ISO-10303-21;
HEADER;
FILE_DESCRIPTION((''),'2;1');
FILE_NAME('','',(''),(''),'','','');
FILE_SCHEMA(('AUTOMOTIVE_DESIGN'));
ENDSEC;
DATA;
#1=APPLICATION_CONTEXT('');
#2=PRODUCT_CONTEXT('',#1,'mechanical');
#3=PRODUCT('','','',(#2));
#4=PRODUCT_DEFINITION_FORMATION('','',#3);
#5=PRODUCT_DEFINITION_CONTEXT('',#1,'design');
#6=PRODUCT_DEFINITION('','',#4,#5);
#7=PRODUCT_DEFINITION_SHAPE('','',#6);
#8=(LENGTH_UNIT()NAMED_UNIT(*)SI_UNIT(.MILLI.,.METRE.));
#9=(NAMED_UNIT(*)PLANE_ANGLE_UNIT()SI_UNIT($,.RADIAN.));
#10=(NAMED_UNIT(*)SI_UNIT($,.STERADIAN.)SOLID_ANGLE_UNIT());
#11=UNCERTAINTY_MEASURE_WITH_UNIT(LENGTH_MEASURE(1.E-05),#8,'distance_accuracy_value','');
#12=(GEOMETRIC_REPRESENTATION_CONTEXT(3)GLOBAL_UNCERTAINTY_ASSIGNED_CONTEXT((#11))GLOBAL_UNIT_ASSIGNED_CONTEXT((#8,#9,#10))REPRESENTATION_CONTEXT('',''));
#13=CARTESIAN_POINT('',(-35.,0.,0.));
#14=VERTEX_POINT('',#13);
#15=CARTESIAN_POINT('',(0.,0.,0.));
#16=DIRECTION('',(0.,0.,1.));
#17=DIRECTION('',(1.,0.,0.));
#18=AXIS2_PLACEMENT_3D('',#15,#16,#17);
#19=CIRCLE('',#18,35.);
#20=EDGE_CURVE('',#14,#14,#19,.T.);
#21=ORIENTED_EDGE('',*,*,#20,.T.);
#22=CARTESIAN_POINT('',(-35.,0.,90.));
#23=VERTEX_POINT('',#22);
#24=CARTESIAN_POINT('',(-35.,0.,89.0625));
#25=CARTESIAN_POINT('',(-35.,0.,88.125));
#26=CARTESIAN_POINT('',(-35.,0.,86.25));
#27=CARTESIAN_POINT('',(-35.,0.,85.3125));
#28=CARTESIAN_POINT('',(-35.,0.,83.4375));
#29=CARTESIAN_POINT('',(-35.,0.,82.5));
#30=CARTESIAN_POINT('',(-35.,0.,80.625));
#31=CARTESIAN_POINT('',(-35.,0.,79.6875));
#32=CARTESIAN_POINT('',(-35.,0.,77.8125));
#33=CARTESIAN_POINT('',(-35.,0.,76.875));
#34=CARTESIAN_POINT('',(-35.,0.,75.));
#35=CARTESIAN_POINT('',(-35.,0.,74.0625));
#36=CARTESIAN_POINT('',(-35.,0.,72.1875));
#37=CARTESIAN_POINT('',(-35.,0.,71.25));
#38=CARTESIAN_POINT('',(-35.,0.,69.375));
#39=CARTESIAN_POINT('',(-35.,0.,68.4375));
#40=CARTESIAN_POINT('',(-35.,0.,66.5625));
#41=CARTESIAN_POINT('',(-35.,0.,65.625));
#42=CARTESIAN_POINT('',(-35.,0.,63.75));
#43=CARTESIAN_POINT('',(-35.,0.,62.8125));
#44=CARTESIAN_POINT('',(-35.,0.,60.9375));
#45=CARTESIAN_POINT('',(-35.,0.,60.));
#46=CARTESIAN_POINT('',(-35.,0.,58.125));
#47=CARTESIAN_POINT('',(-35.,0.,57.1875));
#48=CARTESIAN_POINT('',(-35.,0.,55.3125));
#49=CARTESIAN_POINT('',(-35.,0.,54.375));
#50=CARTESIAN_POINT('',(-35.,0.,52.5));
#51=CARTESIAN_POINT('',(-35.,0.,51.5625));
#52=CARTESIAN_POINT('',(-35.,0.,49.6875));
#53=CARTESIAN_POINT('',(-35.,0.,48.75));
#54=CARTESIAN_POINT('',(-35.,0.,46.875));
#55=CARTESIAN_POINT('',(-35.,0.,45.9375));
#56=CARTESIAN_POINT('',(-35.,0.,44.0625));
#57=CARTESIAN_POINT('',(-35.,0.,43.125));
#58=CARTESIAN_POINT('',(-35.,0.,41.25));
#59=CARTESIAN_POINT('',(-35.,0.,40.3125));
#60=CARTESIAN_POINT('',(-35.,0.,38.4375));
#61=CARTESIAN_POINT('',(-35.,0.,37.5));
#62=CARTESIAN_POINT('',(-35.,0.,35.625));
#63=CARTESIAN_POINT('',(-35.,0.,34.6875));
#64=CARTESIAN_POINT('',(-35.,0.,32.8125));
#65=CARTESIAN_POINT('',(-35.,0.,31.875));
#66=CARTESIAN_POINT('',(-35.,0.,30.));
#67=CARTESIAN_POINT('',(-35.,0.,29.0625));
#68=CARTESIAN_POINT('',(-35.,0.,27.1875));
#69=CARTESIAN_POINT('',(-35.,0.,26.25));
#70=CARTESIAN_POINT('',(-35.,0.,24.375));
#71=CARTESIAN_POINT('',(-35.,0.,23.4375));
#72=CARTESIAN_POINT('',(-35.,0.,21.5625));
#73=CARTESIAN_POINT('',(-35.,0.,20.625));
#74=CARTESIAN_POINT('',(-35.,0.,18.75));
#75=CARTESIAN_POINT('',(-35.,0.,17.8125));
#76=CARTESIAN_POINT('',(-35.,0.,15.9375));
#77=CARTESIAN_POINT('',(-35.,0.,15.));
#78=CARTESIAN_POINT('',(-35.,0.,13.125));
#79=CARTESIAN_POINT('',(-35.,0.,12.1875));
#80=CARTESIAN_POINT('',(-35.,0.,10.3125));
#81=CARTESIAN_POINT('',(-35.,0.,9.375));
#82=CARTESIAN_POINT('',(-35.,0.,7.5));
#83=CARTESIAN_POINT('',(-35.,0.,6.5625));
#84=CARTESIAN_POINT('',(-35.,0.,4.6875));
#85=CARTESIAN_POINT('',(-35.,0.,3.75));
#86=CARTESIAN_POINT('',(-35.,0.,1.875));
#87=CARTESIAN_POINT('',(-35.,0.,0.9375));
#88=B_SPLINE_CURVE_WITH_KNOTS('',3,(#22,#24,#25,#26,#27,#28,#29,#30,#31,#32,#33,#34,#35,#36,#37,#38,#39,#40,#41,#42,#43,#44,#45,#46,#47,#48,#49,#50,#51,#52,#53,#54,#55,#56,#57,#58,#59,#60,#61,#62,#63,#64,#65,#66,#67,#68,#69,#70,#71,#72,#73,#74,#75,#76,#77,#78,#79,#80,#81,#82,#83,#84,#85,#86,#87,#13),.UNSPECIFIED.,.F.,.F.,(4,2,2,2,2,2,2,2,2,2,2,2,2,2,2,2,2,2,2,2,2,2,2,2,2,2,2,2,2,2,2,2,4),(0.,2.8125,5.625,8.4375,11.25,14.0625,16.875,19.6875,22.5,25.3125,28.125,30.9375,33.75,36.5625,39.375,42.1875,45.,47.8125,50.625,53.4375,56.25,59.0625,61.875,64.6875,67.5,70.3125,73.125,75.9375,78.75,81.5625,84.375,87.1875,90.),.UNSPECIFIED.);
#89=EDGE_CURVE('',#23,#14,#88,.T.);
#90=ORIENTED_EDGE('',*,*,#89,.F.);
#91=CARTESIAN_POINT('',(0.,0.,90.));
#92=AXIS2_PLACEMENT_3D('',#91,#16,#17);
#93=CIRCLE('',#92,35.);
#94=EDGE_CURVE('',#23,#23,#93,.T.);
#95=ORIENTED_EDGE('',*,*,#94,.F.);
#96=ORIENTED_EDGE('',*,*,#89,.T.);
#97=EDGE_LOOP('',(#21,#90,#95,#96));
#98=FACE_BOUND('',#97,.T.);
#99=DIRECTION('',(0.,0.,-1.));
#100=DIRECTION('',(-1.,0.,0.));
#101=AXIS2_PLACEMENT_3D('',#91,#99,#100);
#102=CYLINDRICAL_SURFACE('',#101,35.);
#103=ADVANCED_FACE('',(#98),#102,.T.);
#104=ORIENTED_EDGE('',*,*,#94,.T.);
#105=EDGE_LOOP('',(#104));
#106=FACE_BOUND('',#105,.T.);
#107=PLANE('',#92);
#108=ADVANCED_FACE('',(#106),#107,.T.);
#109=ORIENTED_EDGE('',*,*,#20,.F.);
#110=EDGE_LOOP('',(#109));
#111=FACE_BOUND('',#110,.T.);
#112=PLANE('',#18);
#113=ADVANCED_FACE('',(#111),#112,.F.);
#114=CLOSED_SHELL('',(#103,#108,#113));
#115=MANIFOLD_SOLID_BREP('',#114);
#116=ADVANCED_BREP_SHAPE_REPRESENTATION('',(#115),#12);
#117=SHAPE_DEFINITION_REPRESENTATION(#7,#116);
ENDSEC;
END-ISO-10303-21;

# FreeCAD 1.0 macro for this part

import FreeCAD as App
import Part
import Sketcher
from FreeCAD import Vector
Q = App.Units.Quantity

doc = App.newDocument("Part")
params = doc.addObject("Spreadsheet::Sheet", "Params")
for row, (alias, value) in enumerate([
    ("sketch1_diameter", "70 mm"),
    ("pad1_length", "90 mm"),
], start=1):
    params.set(f"A{row}", alias)
    params.set(f"B{row}", "=" + value)
    params.setAlias(f"B{row}", alias)

body = doc.addObject("PartDesign::Body", "Body")

sketch1 = body.newObject("Sketcher::SketchObject", "Sketch")
sketch1.AttachmentSupport = (doc.getObject("XY_Plane"), [""])
sketch1.MapMode = "FlatFace"
sketch1.addGeometry(Part.Circle(Vector(0, 0, 0), Vector(0, 0, 1), 35), False)
sketch1.addConstraint([
    Sketcher.Constraint("Coincident", 0, 3, -1, 1),
    Sketcher.Constraint("Diameter", 0, Q("70 mm")),
])
sketch1.setExpression("Constraints[1]", "Params.sketch1_diameter")
pad1 = body.newObject("PartDesign::Pad", "Pad")
pad1.Profile = sketch1
pad1.setExpression("Length", "Params.pad1_length")

doc.recompute()
